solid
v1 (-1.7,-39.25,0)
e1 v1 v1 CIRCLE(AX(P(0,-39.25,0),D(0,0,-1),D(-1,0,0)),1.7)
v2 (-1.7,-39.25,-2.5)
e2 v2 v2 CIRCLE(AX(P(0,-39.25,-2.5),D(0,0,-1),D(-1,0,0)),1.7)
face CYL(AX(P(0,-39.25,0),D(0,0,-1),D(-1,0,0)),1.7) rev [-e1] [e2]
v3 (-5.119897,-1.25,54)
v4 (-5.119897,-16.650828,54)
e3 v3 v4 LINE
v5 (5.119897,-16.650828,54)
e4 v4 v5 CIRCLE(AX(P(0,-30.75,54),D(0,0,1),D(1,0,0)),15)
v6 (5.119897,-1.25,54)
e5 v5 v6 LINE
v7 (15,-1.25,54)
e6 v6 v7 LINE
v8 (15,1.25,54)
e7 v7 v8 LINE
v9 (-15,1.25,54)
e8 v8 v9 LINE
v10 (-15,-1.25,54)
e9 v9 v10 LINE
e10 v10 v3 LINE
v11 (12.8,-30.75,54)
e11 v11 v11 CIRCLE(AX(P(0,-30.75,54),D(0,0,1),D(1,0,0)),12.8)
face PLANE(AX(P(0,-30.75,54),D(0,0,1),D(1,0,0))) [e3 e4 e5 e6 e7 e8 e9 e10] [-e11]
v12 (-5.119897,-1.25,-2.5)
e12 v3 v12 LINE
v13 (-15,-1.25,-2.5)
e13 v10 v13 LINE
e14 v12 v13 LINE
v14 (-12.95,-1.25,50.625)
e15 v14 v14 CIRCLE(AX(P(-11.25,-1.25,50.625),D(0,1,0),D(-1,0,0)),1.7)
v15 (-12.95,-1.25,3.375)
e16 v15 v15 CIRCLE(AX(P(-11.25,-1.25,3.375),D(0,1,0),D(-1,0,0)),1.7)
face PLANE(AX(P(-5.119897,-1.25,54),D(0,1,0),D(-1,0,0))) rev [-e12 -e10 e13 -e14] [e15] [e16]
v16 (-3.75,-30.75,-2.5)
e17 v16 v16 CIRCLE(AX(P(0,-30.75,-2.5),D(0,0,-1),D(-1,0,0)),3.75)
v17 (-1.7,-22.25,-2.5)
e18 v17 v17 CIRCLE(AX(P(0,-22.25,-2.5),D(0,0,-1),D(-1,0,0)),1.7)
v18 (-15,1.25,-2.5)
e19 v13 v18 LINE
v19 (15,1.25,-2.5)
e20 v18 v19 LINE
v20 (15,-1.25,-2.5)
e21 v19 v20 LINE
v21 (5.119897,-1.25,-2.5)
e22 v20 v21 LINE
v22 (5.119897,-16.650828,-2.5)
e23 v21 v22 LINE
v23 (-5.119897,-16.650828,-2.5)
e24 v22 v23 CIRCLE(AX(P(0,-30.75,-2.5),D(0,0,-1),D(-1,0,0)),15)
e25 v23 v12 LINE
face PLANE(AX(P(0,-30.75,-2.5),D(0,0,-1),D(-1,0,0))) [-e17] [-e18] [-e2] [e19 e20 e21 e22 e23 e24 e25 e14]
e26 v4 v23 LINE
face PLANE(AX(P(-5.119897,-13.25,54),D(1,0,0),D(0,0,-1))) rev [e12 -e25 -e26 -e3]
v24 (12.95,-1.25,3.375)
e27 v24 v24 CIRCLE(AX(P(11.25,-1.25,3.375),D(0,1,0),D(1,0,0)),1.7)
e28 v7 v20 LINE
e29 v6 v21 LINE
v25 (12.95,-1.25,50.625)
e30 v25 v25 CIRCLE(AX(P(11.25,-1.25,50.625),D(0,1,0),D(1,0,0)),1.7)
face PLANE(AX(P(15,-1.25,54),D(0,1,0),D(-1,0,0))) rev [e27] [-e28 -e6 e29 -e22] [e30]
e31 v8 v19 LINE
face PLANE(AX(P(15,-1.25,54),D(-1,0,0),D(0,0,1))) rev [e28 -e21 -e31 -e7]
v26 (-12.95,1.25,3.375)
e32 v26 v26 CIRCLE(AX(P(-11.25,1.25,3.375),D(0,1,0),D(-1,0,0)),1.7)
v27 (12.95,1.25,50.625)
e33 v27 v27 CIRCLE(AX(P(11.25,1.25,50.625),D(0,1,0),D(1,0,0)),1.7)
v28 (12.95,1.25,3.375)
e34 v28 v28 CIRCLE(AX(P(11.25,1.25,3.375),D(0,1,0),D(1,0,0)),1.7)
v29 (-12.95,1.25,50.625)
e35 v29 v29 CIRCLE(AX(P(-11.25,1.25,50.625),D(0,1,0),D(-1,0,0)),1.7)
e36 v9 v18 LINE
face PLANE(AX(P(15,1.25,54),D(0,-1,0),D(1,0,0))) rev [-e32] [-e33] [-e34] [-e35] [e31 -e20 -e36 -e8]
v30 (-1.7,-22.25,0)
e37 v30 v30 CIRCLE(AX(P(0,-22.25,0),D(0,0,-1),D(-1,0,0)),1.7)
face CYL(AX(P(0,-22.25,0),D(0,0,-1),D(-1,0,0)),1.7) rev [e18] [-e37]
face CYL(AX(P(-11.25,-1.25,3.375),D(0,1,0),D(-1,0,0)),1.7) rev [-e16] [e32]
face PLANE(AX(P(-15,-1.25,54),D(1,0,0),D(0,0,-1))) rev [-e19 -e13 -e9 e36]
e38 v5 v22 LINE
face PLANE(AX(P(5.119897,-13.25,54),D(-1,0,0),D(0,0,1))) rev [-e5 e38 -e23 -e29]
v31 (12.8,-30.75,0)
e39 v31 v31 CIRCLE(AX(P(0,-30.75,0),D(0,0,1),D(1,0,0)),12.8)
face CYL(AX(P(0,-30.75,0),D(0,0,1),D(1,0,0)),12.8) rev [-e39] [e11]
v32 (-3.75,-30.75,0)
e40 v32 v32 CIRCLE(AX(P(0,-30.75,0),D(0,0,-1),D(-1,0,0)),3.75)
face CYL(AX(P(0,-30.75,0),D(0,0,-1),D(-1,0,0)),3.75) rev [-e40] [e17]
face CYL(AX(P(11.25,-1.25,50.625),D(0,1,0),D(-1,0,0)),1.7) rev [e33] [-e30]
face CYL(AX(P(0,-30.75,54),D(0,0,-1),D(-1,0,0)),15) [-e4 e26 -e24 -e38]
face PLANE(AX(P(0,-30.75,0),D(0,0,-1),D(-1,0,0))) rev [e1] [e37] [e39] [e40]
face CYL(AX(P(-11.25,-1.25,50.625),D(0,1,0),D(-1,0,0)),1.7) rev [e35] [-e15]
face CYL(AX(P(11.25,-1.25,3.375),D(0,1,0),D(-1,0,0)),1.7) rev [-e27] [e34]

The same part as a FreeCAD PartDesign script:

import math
import FreeCAD as App
import Part
import Sketcher

V = App.Vector

doc = App.newDocument("Part")
body = doc.addObject("PartDesign::Body", "Body")

# Sketch on XY plane
sketch1 = doc.addObject("Sketcher::SketchObject", "Sketch")
body.addObject(sketch1)
sketch1.AttachmentSupport = (doc.XY_Plane, [""])
sketch1.MapMode = "FlatFace"
sketch1.addGeometry([
    Part.LineSegment(V(-15, -1.2, 0), V(-5.1, -1.2, 0)),  # 0
    Part.LineSegment(V(-5.1, -1.2, 0), V(-5.1, -16.7, 0)),  # 1
    Part.ArcOfCircle(Part.Circle(V(0, -30.8, 0), V(0, 0, 1), 15), math.radians(110), math.radians(430)),  # 2
    Part.LineSegment(V(5.1, -16.7, 0), V(5.1, -1.2, 0)),  # 3
    Part.LineSegment(V(5.1, -1.2, 0), V(15, -1.2, 0)),  # 4
    Part.LineSegment(V(15, -1.2, 0), V(15, 1.2, 0)),  # 5
    Part.LineSegment(V(15, 1.2, 0), V(-15, 1.2, 0)),  # 6
    Part.LineSegment(V(-15, 1.2, 0), V(-15, -1.2, 0)),  # 7
    Part.Circle(V(0, -30.8, 0), V(0, 0, 1), 12.5),  # 8
], False)
sketch1.addConstraint([
    Sketcher.Constraint("Coincident", 0, 2, 1, 1),
    Sketcher.Constraint("Coincident", 1, 2, 2, 1),
    Sketcher.Constraint("Coincident", 2, 2, 3, 1),
    Sketcher.Constraint("Coincident", 3, 2, 4, 1),
    Sketcher.Constraint("Coincident", 4, 2, 5, 1),
    Sketcher.Constraint("Coincident", 5, 2, 6, 1),
    Sketcher.Constraint("Coincident", 6, 2, 7, 1),
    Sketcher.Constraint("Coincident", 7, 2, 0, 1),
    Sketcher.Constraint("Horizontal", 0),
    Sketcher.Constraint("Vertical", 1),
    Sketcher.Constraint("Vertical", 3),
    Sketcher.Constraint("Horizontal", 4),
    Sketcher.Constraint("Vertical", 5),
    Sketcher.Constraint("Horizontal", 6),
    Sketcher.Constraint("Vertical", 7),
    Sketcher.Constraint("Coincident", 8, 3, 2, 3),
    Sketcher.Constraint("Symmetric", 4, 2, 6, 2, -1, 1),
    Sketcher.Constraint("Symmetric", 1, 2, 2, 2, -2),
    Sketcher.Constraint("Horizontal", 0, 2, 3, 2),
    Sketcher.Constraint("Diameter", 8, 25.0),
    Sketcher.Constraint("Radius", 2, 15.0),
    Sketcher.Constraint("DistanceX", 6, 2, 6, 1, 30.0),
    Sketcher.Constraint("DistanceY", 5, 1, 5, 2, 2.5),
    Sketcher.Constraint("DistanceY", 2, 3, 0, 2, 29.5),
    Sketcher.Constraint("DistanceY", 1, 2, 1, 1, 15.400828),
])
pad1 = doc.addObject("PartDesign::Pad", "Pad")
body.addObject(pad1)
pad1.Profile = sketch1
pad1.Length = 54

# Sketch on XY plane
sketch2 = doc.addObject("Sketcher::SketchObject", "Sketch001")
body.addObject(sketch2)
sketch2.AttachmentSupport = (doc.XY_Plane, [""])
sketch2.MapMode = "FlatFace"
sketch2.addGeometry(Part.Circle(V(0, -31, 0), V(0, 0, 1), 15), False)
sketch2.addConstraint([
    Sketcher.Constraint("PointOnObject", 0, 3, -2),
    Sketcher.Constraint("Diameter", 0, 30.0),
    Sketcher.Constraint("DistanceY", 0, 3, -1, 1, 30.75),
])
pad2 = doc.addObject("PartDesign::Pad", "Pad001")
body.addObject(pad2)
pad2.Profile = sketch2
pad2.Length = 2.5
pad2.Reversed = True

# Sketch on XY plane
sketch3 = doc.addObject("Sketcher::SketchObject", "Sketch002")
body.addObject(sketch3)
sketch3.AttachmentSupport = (doc.XY_Plane, [""])
sketch3.MapMode = "FlatFace"
sketch3.AttachmentOffset = App.Placement(V(0, 0, -2.5), App.Rotation())
sketch3.addGeometry(Part.Circle(V(0, -30.8, 0), V(0, 0, 1), 3.8), False)
sketch3.addConstraint([
    Sketcher.Constraint("PointOnObject", 0, 3, -2),
    Sketcher.Constraint("Diameter", 0, 7.5),
    Sketcher.Constraint("DistanceY", 0, 3, -1, 1, 30.75),
])
pocket1 = doc.addObject("PartDesign::Pocket", "Pocket")
body.addObject(pocket1)
pocket1.Profile = sketch3
pocket1.Length = 2.5
pocket1.Reversed = True

# Sketch on XY plane
sketch4 = doc.addObject("Sketcher::SketchObject", "Sketch003")
body.addObject(sketch4)
sketch4.AttachmentSupport = (doc.XY_Plane, [""])
sketch4.MapMode = "FlatFace"
sketch4.AttachmentOffset = App.Placement(V(0, 0, -2.5), App.Rotation())
sketch4.addGeometry([
    Part.Circle(V(0, -22.2, 0), V(0, 0, 1), 1.5),
    Part.Circle(V(0, -39.2, 0), V(0, 0, 1), 1.5),
], False)
sketch4.addConstraint([
    Sketcher.Constraint("Equal", 0, 1),
    Sketcher.Constraint("PointOnObject", 0, 3, -2),
    Sketcher.Constraint("PointOnObject", 1, 3, -2),
    Sketcher.Constraint("Diameter", 0, 3.0),
    Sketcher.Constraint("DistanceY", 1, 3, 0, 3, 17.0),
    Sketcher.Constraint("DistanceY", 0, 3, -1, 1, 22.25),
])
pocket2 = doc.addObject("PartDesign::Pocket", "Pocket001")
body.addObject(pocket2)
pocket2.Profile = sketch4
pocket2.Length = 2.5
pocket2.Reversed = True

# Sketch on XZ plane
sketch5 = doc.addObject("Sketcher::SketchObject", "Sketch004")
body.addObject(sketch5)
sketch5.AttachmentSupport = (doc.XZ_Plane, [""])
sketch5.MapMode = "FlatFace"
sketch5.AttachmentOffset = App.Placement(V(0, 0, -1.25), App.Rotation())
sketch5.addGeometry([
    Part.Circle(V(-11.2, 50.6, 0), V(0, 0, 1), 1.5),
    Part.Circle(V(-11.2, 3.4, 0), V(0, 0, 1), 1.5),
    Part.Circle(V(11.2, 50.6, 0), V(0, 0, 1), 1.5),
    Part.Circle(V(11.2, 3.4, 0), V(0, 0, 1), 1.5),
], False)
sketch5.addConstraint([
    Sketcher.Constraint("Equal", 0, 1),
    Sketcher.Constraint("Equal", 1, 2),
    Sketcher.Constraint("Equal", 2, 3),
    Sketcher.Constraint("Symmetric", 0, 3, 2, 3, -2),
    Sketcher.Constraint("Symmetric", 1, 3, 3, 3, -2),
    Sketcher.Constraint("Vertical", 0, 3, 1, 3),
    Sketcher.Constraint("Diameter", 0, 3.0),
    Sketcher.Constraint("DistanceX", 0, 3, 2, 3, 22.5),
    Sketcher.Constraint("DistanceY", 1, 3, 0, 3, 47.25),
    Sketcher.Constraint("DistanceY", -1, 1, 0, 3, 50.625),
])
pocket3 = doc.addObject("PartDesign::Pocket", "Pocket002")
body.addObject(pocket3)
pocket3.Profile = sketch5
pocket3.Length = 2.5
pocket3.Reversed = True

# Sketch on XY plane
sketch6 = doc.addObject("Sketcher::SketchObject", "Sketch005")
body.addObject(sketch6)
sketch6.AttachmentSupport = (doc.XY_Plane, [""])
sketch6.MapMode = "FlatFace"
sketch6.addGeometry([
    Part.LineSegment(V(-15, 1.2, 0), V(15, 1.2, 0)),  # 0
    Part.LineSegment(V(15, 1.2, 0), V(15, -1.2, 0)),  # 1
    Part.LineSegment(V(15, -1.2, 0), V(5.1, -1.2, 0)),  # 2
    Part.LineSegment(V(5.1, -1.2, 0), V(5.1, -16.7, 0)),  # 3
    Part.ArcOfCircle(Part.Circle(V(0, -30.8, 0), V(0, 0, 1), 15), math.radians(70), math.radians(110)),  # 4
    Part.LineSegment(V(-5.1, -16.7, 0), V(-5.1, -1.2, 0)),  # 5
    Part.LineSegment(V(-5.1, -1.2, 0), V(-15, -1.2, 0)),  # 6
    Part.LineSegment(V(-15, -1.2, 0), V(-15, 1.2, 0)),  # 7
], False)
sketch6.addConstraint([
    Sketcher.Constraint("Coincident", 0, 2, 1, 1),
    Sketcher.Constraint("Coincident", 1, 2, 2, 1),
    Sketcher.Constraint("Coincident", 2, 2, 3, 1),
    Sketcher.Constraint("Coincident", 3, 2, 4, 1),
    Sketcher.Constraint("Coincident", 4, 2, 5, 1),
    Sketcher.Constraint("Coincident", 5, 2, 6, 1),
    Sketcher.Constraint("Coincident", 6, 2, 7, 1),
    Sketcher.Constraint("Coincident", 7, 2, 0, 1),
    Sketcher.Constraint("Horizontal", 0),
    Sketcher.Constraint("Vertical", 1),
    Sketcher.Constraint("Horizontal", 2),
    Sketcher.Constraint("Vertical", 3),
    Sketcher.Constraint("Vertical", 5),
    Sketcher.Constraint("Horizontal", 6),
    Sketcher.Constraint("Vertical", 7),
    Sketcher.Constraint("Symmetric", 0, 2, 6, 2, -1, 1),
    Sketcher.Constraint("Symmetric", 3, 2, 4, 2, -2),
    Sketcher.Constraint("Horizontal", 2, 2, 5, 2),
    Sketcher.Constraint("Radius", 4, 15.0),
    Sketcher.Constraint("DistanceX", 0, 1, 0, 2, 30.0),
    Sketcher.Constraint("DistanceY", 1, 2, 1, 1, 2.5),
    Sketcher.Constraint("DistanceY", 4, 3, 0, 2, 32.0),
    Sketcher.Constraint("DistanceY", 3, 2, 3, 1, 15.400828),
])
pad3 = doc.addObject("PartDesign::Pad", "Pad002")
body.addObject(pad3)
pad3.Profile = sketch6
pad3.Length = 2.5
pad3.Reversed = True

# Sketch on XY plane
sketch7 = doc.addObject("Sketcher::SketchObject", "Sketch006")
body.addObject(sketch7)
sketch7.AttachmentSupport = (doc.XY_Plane, [""])
sketch7.MapMode = "FlatFace"
sketch7.AttachmentOffset = App.Placement(V(0, 0, 54), App.Rotation())
sketch7.addGeometry(Part.Circle(V(0, -31, 0), V(0, 0, 1), 13), False)
sketch7.addConstraint([
    Sketcher.Constraint("PointOnObject", 0, 3, -2),
    Sketcher.Constraint("Diameter", 0, 25.6),
    Sketcher.Constraint("DistanceY", 0, 3, -1, 1, 30.75),
])
pocket4 = doc.addObject("PartDesign::Pocket", "Pocket003")
body.addObject(pocket4)
pocket4.Profile = sketch7
pocket4.Length = 54

# Sketch on XY plane
sketch8 = doc.addObject("Sketcher::SketchObject", "Sketch007")
body.addObject(sketch8)
sketch8.AttachmentSupport = (doc.XY_Plane, [""])
sketch8.MapMode = "FlatFace"
sketch8.AttachmentOffset = App.Placement(V(0, 0, -2.5), App.Rotation())
sketch8.addGeometry([
    Part.Circle(V(0, -22.2, 0), V(0, 0, 1), 1.7),
    Part.Circle(V(0, -39.2, 0), V(0, 0, 1), 1.7),
], False)
sketch8.addConstraint([
    Sketcher.Constraint("Equal", 0, 1),
    Sketcher.Constraint("PointOnObject", 0, 3, -2),
    Sketcher.Constraint("PointOnObject", 1, 3, -2),
    Sketcher.Constraint("Diameter", 0, 3.4),
    Sketcher.Constraint("DistanceY", 1, 3, 0, 3, 17.0),
    Sketcher.Constraint("DistanceY", 0, 3, -1, 1, 22.25),
])
pocket5 = doc.addObject("PartDesign::Pocket", "Pocket004")
body.addObject(pocket5)
pocket5.Profile = sketch8
pocket5.Length = 2.5
pocket5.Reversed = True

# Sketch on XZ plane
sketch9 = doc.addObject("Sketcher::SketchObject", "Sketch008")
body.addObject(sketch9)
sketch9.AttachmentSupport = (doc.XZ_Plane, [""])
sketch9.MapMode = "FlatFace"
sketch9.AttachmentOffset = App.Placement(V(0, 0, -1.25), App.Rotation())
sketch9.addGeometry(Part.Circle(V(-11.2, 3.4, 0), V(0, 0, 1), 1.7), False)
sketch9.addConstraint([
    Sketcher.Constraint("Diameter", 0, 3.4),
    Sketcher.Constraint("DistanceX", 0, 3, -1, 1, 11.25),
    Sketcher.Constraint("DistanceY", -1, 1, 0, 3, 3.375),
])
pocket6 = doc.addObject("PartDesign::Pocket", "Pocket005")
body.addObject(pocket6)
pocket6.Profile = sketch9
pocket6.Length = 2.5
pocket6.Reversed = True

# Sketch on XZ plane
sketch10 = doc.addObject("Sketcher::SketchObject", "Sketch009")
body.addObject(sketch10)
sketch10.AttachmentSupport = (doc.XZ_Plane, [""])
sketch10.MapMode = "FlatFace"
sketch10.AttachmentOffset = App.Placement(V(0, 0, -1.25), App.Rotation())
sketch10.addGeometry([
    Part.Circle(V(-11.2, 3.4, 0), V(0, 0, 1), 1.7),
    Part.Circle(V(11.2, 3.4, 0), V(0, 0, 1), 1.7),
    Part.Circle(V(-11.2, 50.6, 0), V(0, 0, 1), 1.7),
    Part.Circle(V(11.2, 50.6, 0), V(0, 0, 1), 1.7),
], False)
sketch10.addConstraint([
    Sketcher.Constraint("Equal", 0, 1),
    Sketcher.Constraint("Equal", 1, 2),
    Sketcher.Constraint("Equal", 2, 3),
    Sketcher.Constraint("Symmetric", 0, 3, 1, 3, -2),
    Sketcher.Constraint("Symmetric", 2, 3, 3, 3, -2),
    Sketcher.Constraint("Vertical", 0, 3, 2, 3),
    Sketcher.Constraint("Diameter", 0, 3.4),
    Sketcher.Constraint("DistanceX", 0, 3, 1, 3, 22.5),
    Sketcher.Constraint("DistanceY", 0, 3, 2, 3, 47.25),
    Sketcher.Constraint("DistanceY", -1, 1, 0, 3, 3.375),
])
pocket7 = doc.addObject("PartDesign::Pocket", "Pocket006")
body.addObject(pocket7)
pocket7.Profile = sketch10
pocket7.Length = 2.5
pocket7.Reversed = True

doc.recompute()
